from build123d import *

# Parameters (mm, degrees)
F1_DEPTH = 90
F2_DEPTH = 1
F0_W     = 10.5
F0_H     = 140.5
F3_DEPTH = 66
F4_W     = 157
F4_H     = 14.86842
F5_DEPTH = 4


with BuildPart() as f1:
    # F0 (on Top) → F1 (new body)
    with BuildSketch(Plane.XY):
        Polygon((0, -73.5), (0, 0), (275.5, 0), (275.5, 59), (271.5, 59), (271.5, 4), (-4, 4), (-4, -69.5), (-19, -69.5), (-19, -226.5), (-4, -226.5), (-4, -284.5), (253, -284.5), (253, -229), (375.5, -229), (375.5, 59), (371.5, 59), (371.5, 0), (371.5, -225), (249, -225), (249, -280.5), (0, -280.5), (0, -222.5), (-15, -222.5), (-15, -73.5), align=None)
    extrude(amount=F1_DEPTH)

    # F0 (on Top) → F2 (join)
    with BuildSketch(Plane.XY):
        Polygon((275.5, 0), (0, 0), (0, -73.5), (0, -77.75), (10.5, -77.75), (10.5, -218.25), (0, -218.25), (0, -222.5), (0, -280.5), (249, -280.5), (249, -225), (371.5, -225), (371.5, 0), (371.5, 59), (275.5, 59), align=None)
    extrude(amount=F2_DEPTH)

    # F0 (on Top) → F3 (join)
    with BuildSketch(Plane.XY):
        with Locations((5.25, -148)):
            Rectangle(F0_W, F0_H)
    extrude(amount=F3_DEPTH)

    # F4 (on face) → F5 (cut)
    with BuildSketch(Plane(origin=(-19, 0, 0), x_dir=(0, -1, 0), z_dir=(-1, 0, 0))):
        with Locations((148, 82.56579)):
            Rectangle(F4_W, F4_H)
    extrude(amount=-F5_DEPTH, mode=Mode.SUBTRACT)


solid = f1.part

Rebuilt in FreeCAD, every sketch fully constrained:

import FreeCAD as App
import Part
import Sketcher

V = App.Vector

doc = App.newDocument("Part")
body = doc.addObject("PartDesign::Body", "Body")

# Sketch on XY plane
sketch1 = body.newObject("Sketcher::SketchObject", "Sketch")
sketch1.AttachmentSupport = (doc.getObject("XY_Plane"), [""])
sketch1.MapMode = "FlatFace"
sketch1.addGeometry([
    Part.LineSegment(V(0, -73.5, 0), V(0, 0, 0)),  # 0
    Part.LineSegment(V(0, 0, 0), V(275.5, 0, 0)),  # 1
    Part.LineSegment(V(275.5, 0, 0), V(275.5, 59, 0)),  # 2
    Part.LineSegment(V(275.5, 59, 0), V(271.5, 59, 0)),  # 3
    Part.LineSegment(V(271.5, 59, 0), V(271.5, 4, 0)),  # 4
    Part.LineSegment(V(271.5, 4, 0), V(-4, 4, 0)),  # 5
    Part.LineSegment(V(-4, 4, 0), V(-4, -69.5, 0)),  # 6
    Part.LineSegment(V(-4, -69.5, 0), V(-19, -69.5, 0)),  # 7
    Part.LineSegment(V(-19, -69.5, 0), V(-19, -226.5, 0)),  # 8
    Part.LineSegment(V(-19, -226.5, 0), V(-4, -226.5, 0)),  # 9
    Part.LineSegment(V(-4, -226.5, 0), V(-4, -284.5, 0)),  # 10
    Part.LineSegment(V(-4, -284.5, 0), V(253, -284.5, 0)),  # 11
    Part.LineSegment(V(253, -284.5, 0), V(253, -229, 0)),  # 12
    Part.LineSegment(V(253, -229, 0), V(375.5, -229, 0)),  # 13
    Part.LineSegment(V(375.5, -229, 0), V(375.5, 59, 0)),  # 14
    Part.LineSegment(V(375.5, 59, 0), V(371.5, 59, 0)),  # 15
    Part.LineSegment(V(371.5, 59, 0), V(371.5, -225, 0)),  # 16
    Part.LineSegment(V(371.5, -225, 0), V(249, -225, 0)),  # 17
    Part.LineSegment(V(249, -225, 0), V(249, -280.5, 0)),  # 18
    Part.LineSegment(V(249, -280.5, 0), V(0, -280.5, 0)),  # 19
    Part.LineSegment(V(0, -280.5, 0), V(0, -222.5, 0)),  # 20
    Part.LineSegment(V(0, -222.5, 0), V(-15, -222.5, 0)),  # 21
    Part.LineSegment(V(-15, -222.5, 0), V(-15, -73.5, 0)),  # 22
    Part.LineSegment(V(-15, -73.5, 0), V(0, -73.5, 0)),  # 23
], False)
sketch1.addConstraint([
    Sketcher.Constraint("Coincident", 0, 2, 1, 1),
    Sketcher.Constraint("Coincident", 1, 2, 2, 1),
    Sketcher.Constraint("Coincident", 2, 2, 3, 1),
    Sketcher.Constraint("Coincident", 3, 2, 4, 1),
    Sketcher.Constraint("Coincident", 4, 2, 5, 1),
    Sketcher.Constraint("Coincident", 5, 2, 6, 1),
    Sketcher.Constraint("Coincident", 6, 2, 7, 1),
    Sketcher.Constraint("Coincident", 7, 2, 8, 1),
    Sketcher.Constraint("Coincident", 8, 2, 9, 1),
    Sketcher.Constraint("Coincident", 9, 2, 10, 1),
    Sketcher.Constraint("Coincident", 10, 2, 11, 1),
    Sketcher.Constraint("Coincident", 11, 2, 12, 1),
    Sketcher.Constraint("Coincident", 12, 2, 13, 1),
    Sketcher.Constraint("Coincident", 13, 2, 14, 1),
    Sketcher.Constraint("Coincident", 14, 2, 15, 1),
    Sketcher.Constraint("Coincident", 15, 2, 16, 1),
    Sketcher.Constraint("Coincident", 16, 2, 17, 1),
    Sketcher.Constraint("Coincident", 17, 2, 18, 1),
    Sketcher.Constraint("Coincident", 18, 2, 19, 1),
    Sketcher.Constraint("Coincident", 19, 2, 20, 1),
    Sketcher.Constraint("Coincident", 20, 2, 21, 1),
    Sketcher.Constraint("Coincident", 21, 2, 22, 1),
    Sketcher.Constraint("Coincident", 22, 2, 23, 1),
    Sketcher.Constraint("Coincident", 23, 2, 0, 1),
    Sketcher.Constraint("Vertical", 0),
    Sketcher.Constraint("Horizontal", 1),
    Sketcher.Constraint("Vertical", 2),
    Sketcher.Constraint("Horizontal", 3),
    Sketcher.Constraint("Vertical", 4),
    Sketcher.Constraint("Horizontal", 5),
    Sketcher.Constraint("Vertical", 6),
    Sketcher.Constraint("Horizontal", 7),
    Sketcher.Constraint("Vertical", 8),
    Sketcher.Constraint("Horizontal", 9),
    Sketcher.Constraint("Vertical", 10),
    Sketcher.Constraint("Horizontal", 11),
    Sketcher.Constraint("Vertical", 12),
    Sketcher.Constraint("Horizontal", 13),
    Sketcher.Constraint("Vertical", 14),
    Sketcher.Constraint("Horizontal", 15),
    Sketcher.Constraint("Vertical", 16),
    Sketcher.Constraint("Horizontal", 17),
    Sketcher.Constraint("Vertical", 18),
    Sketcher.Constraint("Horizontal", 19),
    Sketcher.Constraint("Vertical", 20),
    Sketcher.Constraint("Horizontal", 21),
    Sketcher.Constraint("Vertical", 22),
    Sketcher.Constraint("Horizontal", 23),
    Sketcher.Constraint("Coincident", 0, 2, -1, 1),
    Sketcher.Constraint("PointOnObject", 19, 2, -2),
    Sketcher.Constraint("Horizontal", 3, 2, 14, 2),
    Sketcher.Constraint("Vertical", 6, 2, 9, 2),
    Sketcher.Constraint("Equal", 1, 5),
    Sketcher.Constraint("Equal", 3, 15),
    Sketcher.Constraint("Equal", 13, 17),
    Sketcher.Constraint("Equal", 9, 21),
    Sketcher.Constraint("Equal", 0, 6),
    Sketcher.Constraint("Equal", 12, 18),
    Sketcher.Constraint("Equal", 10, 20),
    Sketcher.Constraint("DistanceX", 3, 2, 3, 1, 4.0),
    Sketcher.Constraint("DistanceX", 7, 2, 7, 1, 15.0),
    Sketcher.Constraint("DistanceX", 11, 1, 11, 2, 257.0),
    Sketcher.Constraint("DistanceY", 2, 1, 2, 2, 59.0),
    Sketcher.Constraint("DistanceY", 4, 2, 4, 1, 55.0),
    Sketcher.Constraint("DistanceY", 8, 2, 8, 1, 157.0),
    Sketcher.Constraint("DistanceY", 10, 2, 10, 1, 58.0),
    Sketcher.Constraint("DistanceY", 14, 1, 14, 2, 288.0),
    Sketcher.Constraint("DistanceY", 16, 2, 16, 1, 284.0),
    Sketcher.Constraint("DistanceX", 1, 1, 1, 2, 275.5),
    Sketcher.Constraint("DistanceX", 13, 1, 13, 2, 122.5),
    Sketcher.Constraint("DistanceY", 0, 1, 0, 2, 73.5),
])
pad1 = body.newObject("PartDesign::Pad", "Pad")
pad1.Profile = sketch1
pad1.Length = 90

# Sketch on XY plane
sketch2 = body.newObject("Sketcher::SketchObject", "Sketch001")
sketch2.AttachmentSupport = (doc.getObject("XY_Plane"), [""])
sketch2.MapMode = "FlatFace"
sketch2.addGeometry([
    Part.LineSegment(V(276, 0, 0), V(0, 0, 0)),  # 0
    Part.LineSegment(V(0, 0, 0), V(0, -78, 0)),  # 1
    Part.LineSegment(V(0, -78, 0), V(10, -78, 0)),  # 2
    Part.LineSegment(V(10, -78, 0), V(10, -218, 0)),  # 3
    Part.LineSegment(V(10, -218, 0), V(0, -218, 0)),  # 4
    Part.LineSegment(V(0, -218, 0), V(0, -280, 0)),  # 5
    Part.LineSegment(V(0, -280, 0), V(249, -280, 0)),  # 6
    Part.LineSegment(V(249, -280, 0), V(249, -225, 0)),  # 7
    Part.LineSegment(V(249, -225, 0), V(372, -225, 0)),  # 8
    Part.LineSegment(V(372, -225, 0), V(372, 59, 0)),  # 9
    Part.LineSegment(V(372, 59, 0), V(276, 59, 0)),  # 10
    Part.LineSegment(V(276, 59, 0), V(276, 0, 0)),  # 11
], False)
sketch2.addConstraint([
    Sketcher.Constraint("Coincident", 0, 2, 1, 1),
    Sketcher.Constraint("Coincident", 1, 2, 2, 1),
    Sketcher.Constraint("Coincident", 2, 2, 3, 1),
    Sketcher.Constraint("Coincident", 3, 2, 4, 1),
    Sketcher.Constraint("Coincident", 4, 2, 5, 1),
    Sketcher.Constraint("Coincident", 5, 2, 6, 1),
    Sketcher.Constraint("Coincident", 6, 2, 7, 1),
    Sketcher.Constraint("Coincident", 7, 2, 8, 1),
    Sketcher.Constraint("Coincident", 8, 2, 9, 1),
    Sketcher.Constraint("Coincident", 9, 2, 10, 1),
    Sketcher.Constraint("Coincident", 10, 2, 11, 1),
    Sketcher.Constraint("Coincident", 11, 2, 0, 1),
    Sketcher.Constraint("Horizontal", 0),
    Sketcher.Constraint("Vertical", 1),
    Sketcher.Constraint("Horizontal", 2),
    Sketcher.Constraint("Vertical", 3),
    Sketcher.Constraint("Horizontal", 4),
    Sketcher.Constraint("Vertical", 5),
    Sketcher.Constraint("Horizontal", 6),
    Sketcher.Constraint("Vertical", 7),
    Sketcher.Constraint("Horizontal", 8),
    Sketcher.Constraint("Vertical", 9),
    Sketcher.Constraint("Horizontal", 10),
    Sketcher.Constraint("Vertical", 11),
    Sketcher.Constraint("Coincident", 0, 2, -1, 1),
    Sketcher.Constraint("PointOnObject", 4, 2, -2),
    Sketcher.Constraint("DistanceX", 6, 1, 6, 2, 249.0),
    Sketcher.Constraint("DistanceX", 10, 2, 10, 1, 96.0),
    Sketcher.Constraint("DistanceY", 9, 1, 9, 2, 284.0),
    Sketcher.Constraint("DistanceY", 11, 2, 11, 1, 59.0),
    Sketcher.Constraint("DistanceX", 0, 2, 0, 1, 275.5),
    Sketcher.Constraint("DistanceX", 2, 1, 2, 2, 10.5),
    Sketcher.Constraint("DistanceY", 3, 2, 3, 1, 140.5),
    Sketcher.Constraint("DistanceY", 7, 1, 7, 2, 55.5),
    Sketcher.Constraint("DistanceY", 1, 2, 1, 1, 77.75),
])
pad2 = body.newObject("PartDesign::Pad", "Pad001")
pad2.Profile = sketch2
pad2.Length = 1

# Sketch on XY plane
sketch3 = body.newObject("Sketcher::SketchObject", "Sketch002")
sketch3.AttachmentSupport = (doc.getObject("XY_Plane"), [""])
sketch3.MapMode = "FlatFace"
sketch3.addGeometry([
    Part.LineSegment(V(0, -78, 0), V(0, -218, 0)),
    Part.LineSegment(V(0, -218, 0), V(10, -218, 0)),
    Part.LineSegment(V(10, -218, 0), V(10, -78, 0)),
    Part.LineSegment(V(10, -78, 0), V(0, -78, 0)),
], False)
sketch3.addConstraint([
    Sketcher.Constraint("Coincident", 0, 2, 1, 1),
    Sketcher.Constraint("Coincident", 1, 2, 2, 1),
    Sketcher.Constraint("Coincident", 2, 2, 3, 1),
    Sketcher.Constraint("Coincident", 3, 2, 0, 1),
    Sketcher.Constraint("Vertical", 0),
    Sketcher.Constraint("Horizontal", 1),
    Sketcher.Constraint("Vertical", 2),
    Sketcher.Constraint("Horizontal", 3),
    Sketcher.Constraint("PointOnObject", 0, 2, -2),
    Sketcher.Constraint("DistanceX", 1, 1, 1, 2, 10.5),
    Sketcher.Constraint("DistanceY", 0, 2, 0, 1, 140.5),
    Sketcher.Constraint("DistanceY", 0, 2, -1, 1, 218.25),
])
pad3 = body.newObject("PartDesign::Pad", "Pad002")
pad3.Profile = sketch3
pad3.Length = 66

# Sketch on YZ plane
sketch4 = body.newObject("Sketcher::SketchObject", "Sketch003")
sketch4.AttachmentSupport = (doc.getObject("YZ_Plane"), [""])
sketch4.MapMode = "FlatFace"
sketch4.AttachmentOffset = App.Placement(V(0, 0, -19), App.Rotation())
sketch4.addGeometry([
    Part.LineSegment(V(-70, 90, 0), V(-70, 75, 0)),
    Part.LineSegment(V(-70, 75, 0), V(-226, 75, 0)),
    Part.LineSegment(V(-226, 75, 0), V(-226, 90, 0)),
    Part.LineSegment(V(-226, 90, 0), V(-70, 90, 0)),
], False)
sketch4.addConstraint([
    Sketcher.Constraint("Coincident", 0, 2, 1, 1),
    Sketcher.Constraint("Coincident", 1, 2, 2, 1),
    Sketcher.Constraint("Coincident", 2, 2, 3, 1),
    Sketcher.Constraint("Coincident", 3, 2, 0, 1),
    Sketcher.Constraint("Vertical", 0),
    Sketcher.Constraint("Horizontal", 1),
    Sketcher.Constraint("Vertical", 2),
    Sketcher.Constraint("Horizontal", 3),
    Sketcher.Constraint("DistanceX", 1, 2, 1, 1, 157.0),
    Sketcher.Constraint("DistanceY", -1, 1, 2, 2, 90.0),
    Sketcher.Constraint("DistanceX", 0, 2, -1, 1, 69.5),
    Sketcher.Constraint("DistanceY", 0, 2, 0, 1, 14.86842),
])
pocket1 = body.newObject("PartDesign::Pocket", "Pocket")
pocket1.Profile = sketch4
pocket1.Length = 4
pocket1.Reversed = True

doc.recompute()
